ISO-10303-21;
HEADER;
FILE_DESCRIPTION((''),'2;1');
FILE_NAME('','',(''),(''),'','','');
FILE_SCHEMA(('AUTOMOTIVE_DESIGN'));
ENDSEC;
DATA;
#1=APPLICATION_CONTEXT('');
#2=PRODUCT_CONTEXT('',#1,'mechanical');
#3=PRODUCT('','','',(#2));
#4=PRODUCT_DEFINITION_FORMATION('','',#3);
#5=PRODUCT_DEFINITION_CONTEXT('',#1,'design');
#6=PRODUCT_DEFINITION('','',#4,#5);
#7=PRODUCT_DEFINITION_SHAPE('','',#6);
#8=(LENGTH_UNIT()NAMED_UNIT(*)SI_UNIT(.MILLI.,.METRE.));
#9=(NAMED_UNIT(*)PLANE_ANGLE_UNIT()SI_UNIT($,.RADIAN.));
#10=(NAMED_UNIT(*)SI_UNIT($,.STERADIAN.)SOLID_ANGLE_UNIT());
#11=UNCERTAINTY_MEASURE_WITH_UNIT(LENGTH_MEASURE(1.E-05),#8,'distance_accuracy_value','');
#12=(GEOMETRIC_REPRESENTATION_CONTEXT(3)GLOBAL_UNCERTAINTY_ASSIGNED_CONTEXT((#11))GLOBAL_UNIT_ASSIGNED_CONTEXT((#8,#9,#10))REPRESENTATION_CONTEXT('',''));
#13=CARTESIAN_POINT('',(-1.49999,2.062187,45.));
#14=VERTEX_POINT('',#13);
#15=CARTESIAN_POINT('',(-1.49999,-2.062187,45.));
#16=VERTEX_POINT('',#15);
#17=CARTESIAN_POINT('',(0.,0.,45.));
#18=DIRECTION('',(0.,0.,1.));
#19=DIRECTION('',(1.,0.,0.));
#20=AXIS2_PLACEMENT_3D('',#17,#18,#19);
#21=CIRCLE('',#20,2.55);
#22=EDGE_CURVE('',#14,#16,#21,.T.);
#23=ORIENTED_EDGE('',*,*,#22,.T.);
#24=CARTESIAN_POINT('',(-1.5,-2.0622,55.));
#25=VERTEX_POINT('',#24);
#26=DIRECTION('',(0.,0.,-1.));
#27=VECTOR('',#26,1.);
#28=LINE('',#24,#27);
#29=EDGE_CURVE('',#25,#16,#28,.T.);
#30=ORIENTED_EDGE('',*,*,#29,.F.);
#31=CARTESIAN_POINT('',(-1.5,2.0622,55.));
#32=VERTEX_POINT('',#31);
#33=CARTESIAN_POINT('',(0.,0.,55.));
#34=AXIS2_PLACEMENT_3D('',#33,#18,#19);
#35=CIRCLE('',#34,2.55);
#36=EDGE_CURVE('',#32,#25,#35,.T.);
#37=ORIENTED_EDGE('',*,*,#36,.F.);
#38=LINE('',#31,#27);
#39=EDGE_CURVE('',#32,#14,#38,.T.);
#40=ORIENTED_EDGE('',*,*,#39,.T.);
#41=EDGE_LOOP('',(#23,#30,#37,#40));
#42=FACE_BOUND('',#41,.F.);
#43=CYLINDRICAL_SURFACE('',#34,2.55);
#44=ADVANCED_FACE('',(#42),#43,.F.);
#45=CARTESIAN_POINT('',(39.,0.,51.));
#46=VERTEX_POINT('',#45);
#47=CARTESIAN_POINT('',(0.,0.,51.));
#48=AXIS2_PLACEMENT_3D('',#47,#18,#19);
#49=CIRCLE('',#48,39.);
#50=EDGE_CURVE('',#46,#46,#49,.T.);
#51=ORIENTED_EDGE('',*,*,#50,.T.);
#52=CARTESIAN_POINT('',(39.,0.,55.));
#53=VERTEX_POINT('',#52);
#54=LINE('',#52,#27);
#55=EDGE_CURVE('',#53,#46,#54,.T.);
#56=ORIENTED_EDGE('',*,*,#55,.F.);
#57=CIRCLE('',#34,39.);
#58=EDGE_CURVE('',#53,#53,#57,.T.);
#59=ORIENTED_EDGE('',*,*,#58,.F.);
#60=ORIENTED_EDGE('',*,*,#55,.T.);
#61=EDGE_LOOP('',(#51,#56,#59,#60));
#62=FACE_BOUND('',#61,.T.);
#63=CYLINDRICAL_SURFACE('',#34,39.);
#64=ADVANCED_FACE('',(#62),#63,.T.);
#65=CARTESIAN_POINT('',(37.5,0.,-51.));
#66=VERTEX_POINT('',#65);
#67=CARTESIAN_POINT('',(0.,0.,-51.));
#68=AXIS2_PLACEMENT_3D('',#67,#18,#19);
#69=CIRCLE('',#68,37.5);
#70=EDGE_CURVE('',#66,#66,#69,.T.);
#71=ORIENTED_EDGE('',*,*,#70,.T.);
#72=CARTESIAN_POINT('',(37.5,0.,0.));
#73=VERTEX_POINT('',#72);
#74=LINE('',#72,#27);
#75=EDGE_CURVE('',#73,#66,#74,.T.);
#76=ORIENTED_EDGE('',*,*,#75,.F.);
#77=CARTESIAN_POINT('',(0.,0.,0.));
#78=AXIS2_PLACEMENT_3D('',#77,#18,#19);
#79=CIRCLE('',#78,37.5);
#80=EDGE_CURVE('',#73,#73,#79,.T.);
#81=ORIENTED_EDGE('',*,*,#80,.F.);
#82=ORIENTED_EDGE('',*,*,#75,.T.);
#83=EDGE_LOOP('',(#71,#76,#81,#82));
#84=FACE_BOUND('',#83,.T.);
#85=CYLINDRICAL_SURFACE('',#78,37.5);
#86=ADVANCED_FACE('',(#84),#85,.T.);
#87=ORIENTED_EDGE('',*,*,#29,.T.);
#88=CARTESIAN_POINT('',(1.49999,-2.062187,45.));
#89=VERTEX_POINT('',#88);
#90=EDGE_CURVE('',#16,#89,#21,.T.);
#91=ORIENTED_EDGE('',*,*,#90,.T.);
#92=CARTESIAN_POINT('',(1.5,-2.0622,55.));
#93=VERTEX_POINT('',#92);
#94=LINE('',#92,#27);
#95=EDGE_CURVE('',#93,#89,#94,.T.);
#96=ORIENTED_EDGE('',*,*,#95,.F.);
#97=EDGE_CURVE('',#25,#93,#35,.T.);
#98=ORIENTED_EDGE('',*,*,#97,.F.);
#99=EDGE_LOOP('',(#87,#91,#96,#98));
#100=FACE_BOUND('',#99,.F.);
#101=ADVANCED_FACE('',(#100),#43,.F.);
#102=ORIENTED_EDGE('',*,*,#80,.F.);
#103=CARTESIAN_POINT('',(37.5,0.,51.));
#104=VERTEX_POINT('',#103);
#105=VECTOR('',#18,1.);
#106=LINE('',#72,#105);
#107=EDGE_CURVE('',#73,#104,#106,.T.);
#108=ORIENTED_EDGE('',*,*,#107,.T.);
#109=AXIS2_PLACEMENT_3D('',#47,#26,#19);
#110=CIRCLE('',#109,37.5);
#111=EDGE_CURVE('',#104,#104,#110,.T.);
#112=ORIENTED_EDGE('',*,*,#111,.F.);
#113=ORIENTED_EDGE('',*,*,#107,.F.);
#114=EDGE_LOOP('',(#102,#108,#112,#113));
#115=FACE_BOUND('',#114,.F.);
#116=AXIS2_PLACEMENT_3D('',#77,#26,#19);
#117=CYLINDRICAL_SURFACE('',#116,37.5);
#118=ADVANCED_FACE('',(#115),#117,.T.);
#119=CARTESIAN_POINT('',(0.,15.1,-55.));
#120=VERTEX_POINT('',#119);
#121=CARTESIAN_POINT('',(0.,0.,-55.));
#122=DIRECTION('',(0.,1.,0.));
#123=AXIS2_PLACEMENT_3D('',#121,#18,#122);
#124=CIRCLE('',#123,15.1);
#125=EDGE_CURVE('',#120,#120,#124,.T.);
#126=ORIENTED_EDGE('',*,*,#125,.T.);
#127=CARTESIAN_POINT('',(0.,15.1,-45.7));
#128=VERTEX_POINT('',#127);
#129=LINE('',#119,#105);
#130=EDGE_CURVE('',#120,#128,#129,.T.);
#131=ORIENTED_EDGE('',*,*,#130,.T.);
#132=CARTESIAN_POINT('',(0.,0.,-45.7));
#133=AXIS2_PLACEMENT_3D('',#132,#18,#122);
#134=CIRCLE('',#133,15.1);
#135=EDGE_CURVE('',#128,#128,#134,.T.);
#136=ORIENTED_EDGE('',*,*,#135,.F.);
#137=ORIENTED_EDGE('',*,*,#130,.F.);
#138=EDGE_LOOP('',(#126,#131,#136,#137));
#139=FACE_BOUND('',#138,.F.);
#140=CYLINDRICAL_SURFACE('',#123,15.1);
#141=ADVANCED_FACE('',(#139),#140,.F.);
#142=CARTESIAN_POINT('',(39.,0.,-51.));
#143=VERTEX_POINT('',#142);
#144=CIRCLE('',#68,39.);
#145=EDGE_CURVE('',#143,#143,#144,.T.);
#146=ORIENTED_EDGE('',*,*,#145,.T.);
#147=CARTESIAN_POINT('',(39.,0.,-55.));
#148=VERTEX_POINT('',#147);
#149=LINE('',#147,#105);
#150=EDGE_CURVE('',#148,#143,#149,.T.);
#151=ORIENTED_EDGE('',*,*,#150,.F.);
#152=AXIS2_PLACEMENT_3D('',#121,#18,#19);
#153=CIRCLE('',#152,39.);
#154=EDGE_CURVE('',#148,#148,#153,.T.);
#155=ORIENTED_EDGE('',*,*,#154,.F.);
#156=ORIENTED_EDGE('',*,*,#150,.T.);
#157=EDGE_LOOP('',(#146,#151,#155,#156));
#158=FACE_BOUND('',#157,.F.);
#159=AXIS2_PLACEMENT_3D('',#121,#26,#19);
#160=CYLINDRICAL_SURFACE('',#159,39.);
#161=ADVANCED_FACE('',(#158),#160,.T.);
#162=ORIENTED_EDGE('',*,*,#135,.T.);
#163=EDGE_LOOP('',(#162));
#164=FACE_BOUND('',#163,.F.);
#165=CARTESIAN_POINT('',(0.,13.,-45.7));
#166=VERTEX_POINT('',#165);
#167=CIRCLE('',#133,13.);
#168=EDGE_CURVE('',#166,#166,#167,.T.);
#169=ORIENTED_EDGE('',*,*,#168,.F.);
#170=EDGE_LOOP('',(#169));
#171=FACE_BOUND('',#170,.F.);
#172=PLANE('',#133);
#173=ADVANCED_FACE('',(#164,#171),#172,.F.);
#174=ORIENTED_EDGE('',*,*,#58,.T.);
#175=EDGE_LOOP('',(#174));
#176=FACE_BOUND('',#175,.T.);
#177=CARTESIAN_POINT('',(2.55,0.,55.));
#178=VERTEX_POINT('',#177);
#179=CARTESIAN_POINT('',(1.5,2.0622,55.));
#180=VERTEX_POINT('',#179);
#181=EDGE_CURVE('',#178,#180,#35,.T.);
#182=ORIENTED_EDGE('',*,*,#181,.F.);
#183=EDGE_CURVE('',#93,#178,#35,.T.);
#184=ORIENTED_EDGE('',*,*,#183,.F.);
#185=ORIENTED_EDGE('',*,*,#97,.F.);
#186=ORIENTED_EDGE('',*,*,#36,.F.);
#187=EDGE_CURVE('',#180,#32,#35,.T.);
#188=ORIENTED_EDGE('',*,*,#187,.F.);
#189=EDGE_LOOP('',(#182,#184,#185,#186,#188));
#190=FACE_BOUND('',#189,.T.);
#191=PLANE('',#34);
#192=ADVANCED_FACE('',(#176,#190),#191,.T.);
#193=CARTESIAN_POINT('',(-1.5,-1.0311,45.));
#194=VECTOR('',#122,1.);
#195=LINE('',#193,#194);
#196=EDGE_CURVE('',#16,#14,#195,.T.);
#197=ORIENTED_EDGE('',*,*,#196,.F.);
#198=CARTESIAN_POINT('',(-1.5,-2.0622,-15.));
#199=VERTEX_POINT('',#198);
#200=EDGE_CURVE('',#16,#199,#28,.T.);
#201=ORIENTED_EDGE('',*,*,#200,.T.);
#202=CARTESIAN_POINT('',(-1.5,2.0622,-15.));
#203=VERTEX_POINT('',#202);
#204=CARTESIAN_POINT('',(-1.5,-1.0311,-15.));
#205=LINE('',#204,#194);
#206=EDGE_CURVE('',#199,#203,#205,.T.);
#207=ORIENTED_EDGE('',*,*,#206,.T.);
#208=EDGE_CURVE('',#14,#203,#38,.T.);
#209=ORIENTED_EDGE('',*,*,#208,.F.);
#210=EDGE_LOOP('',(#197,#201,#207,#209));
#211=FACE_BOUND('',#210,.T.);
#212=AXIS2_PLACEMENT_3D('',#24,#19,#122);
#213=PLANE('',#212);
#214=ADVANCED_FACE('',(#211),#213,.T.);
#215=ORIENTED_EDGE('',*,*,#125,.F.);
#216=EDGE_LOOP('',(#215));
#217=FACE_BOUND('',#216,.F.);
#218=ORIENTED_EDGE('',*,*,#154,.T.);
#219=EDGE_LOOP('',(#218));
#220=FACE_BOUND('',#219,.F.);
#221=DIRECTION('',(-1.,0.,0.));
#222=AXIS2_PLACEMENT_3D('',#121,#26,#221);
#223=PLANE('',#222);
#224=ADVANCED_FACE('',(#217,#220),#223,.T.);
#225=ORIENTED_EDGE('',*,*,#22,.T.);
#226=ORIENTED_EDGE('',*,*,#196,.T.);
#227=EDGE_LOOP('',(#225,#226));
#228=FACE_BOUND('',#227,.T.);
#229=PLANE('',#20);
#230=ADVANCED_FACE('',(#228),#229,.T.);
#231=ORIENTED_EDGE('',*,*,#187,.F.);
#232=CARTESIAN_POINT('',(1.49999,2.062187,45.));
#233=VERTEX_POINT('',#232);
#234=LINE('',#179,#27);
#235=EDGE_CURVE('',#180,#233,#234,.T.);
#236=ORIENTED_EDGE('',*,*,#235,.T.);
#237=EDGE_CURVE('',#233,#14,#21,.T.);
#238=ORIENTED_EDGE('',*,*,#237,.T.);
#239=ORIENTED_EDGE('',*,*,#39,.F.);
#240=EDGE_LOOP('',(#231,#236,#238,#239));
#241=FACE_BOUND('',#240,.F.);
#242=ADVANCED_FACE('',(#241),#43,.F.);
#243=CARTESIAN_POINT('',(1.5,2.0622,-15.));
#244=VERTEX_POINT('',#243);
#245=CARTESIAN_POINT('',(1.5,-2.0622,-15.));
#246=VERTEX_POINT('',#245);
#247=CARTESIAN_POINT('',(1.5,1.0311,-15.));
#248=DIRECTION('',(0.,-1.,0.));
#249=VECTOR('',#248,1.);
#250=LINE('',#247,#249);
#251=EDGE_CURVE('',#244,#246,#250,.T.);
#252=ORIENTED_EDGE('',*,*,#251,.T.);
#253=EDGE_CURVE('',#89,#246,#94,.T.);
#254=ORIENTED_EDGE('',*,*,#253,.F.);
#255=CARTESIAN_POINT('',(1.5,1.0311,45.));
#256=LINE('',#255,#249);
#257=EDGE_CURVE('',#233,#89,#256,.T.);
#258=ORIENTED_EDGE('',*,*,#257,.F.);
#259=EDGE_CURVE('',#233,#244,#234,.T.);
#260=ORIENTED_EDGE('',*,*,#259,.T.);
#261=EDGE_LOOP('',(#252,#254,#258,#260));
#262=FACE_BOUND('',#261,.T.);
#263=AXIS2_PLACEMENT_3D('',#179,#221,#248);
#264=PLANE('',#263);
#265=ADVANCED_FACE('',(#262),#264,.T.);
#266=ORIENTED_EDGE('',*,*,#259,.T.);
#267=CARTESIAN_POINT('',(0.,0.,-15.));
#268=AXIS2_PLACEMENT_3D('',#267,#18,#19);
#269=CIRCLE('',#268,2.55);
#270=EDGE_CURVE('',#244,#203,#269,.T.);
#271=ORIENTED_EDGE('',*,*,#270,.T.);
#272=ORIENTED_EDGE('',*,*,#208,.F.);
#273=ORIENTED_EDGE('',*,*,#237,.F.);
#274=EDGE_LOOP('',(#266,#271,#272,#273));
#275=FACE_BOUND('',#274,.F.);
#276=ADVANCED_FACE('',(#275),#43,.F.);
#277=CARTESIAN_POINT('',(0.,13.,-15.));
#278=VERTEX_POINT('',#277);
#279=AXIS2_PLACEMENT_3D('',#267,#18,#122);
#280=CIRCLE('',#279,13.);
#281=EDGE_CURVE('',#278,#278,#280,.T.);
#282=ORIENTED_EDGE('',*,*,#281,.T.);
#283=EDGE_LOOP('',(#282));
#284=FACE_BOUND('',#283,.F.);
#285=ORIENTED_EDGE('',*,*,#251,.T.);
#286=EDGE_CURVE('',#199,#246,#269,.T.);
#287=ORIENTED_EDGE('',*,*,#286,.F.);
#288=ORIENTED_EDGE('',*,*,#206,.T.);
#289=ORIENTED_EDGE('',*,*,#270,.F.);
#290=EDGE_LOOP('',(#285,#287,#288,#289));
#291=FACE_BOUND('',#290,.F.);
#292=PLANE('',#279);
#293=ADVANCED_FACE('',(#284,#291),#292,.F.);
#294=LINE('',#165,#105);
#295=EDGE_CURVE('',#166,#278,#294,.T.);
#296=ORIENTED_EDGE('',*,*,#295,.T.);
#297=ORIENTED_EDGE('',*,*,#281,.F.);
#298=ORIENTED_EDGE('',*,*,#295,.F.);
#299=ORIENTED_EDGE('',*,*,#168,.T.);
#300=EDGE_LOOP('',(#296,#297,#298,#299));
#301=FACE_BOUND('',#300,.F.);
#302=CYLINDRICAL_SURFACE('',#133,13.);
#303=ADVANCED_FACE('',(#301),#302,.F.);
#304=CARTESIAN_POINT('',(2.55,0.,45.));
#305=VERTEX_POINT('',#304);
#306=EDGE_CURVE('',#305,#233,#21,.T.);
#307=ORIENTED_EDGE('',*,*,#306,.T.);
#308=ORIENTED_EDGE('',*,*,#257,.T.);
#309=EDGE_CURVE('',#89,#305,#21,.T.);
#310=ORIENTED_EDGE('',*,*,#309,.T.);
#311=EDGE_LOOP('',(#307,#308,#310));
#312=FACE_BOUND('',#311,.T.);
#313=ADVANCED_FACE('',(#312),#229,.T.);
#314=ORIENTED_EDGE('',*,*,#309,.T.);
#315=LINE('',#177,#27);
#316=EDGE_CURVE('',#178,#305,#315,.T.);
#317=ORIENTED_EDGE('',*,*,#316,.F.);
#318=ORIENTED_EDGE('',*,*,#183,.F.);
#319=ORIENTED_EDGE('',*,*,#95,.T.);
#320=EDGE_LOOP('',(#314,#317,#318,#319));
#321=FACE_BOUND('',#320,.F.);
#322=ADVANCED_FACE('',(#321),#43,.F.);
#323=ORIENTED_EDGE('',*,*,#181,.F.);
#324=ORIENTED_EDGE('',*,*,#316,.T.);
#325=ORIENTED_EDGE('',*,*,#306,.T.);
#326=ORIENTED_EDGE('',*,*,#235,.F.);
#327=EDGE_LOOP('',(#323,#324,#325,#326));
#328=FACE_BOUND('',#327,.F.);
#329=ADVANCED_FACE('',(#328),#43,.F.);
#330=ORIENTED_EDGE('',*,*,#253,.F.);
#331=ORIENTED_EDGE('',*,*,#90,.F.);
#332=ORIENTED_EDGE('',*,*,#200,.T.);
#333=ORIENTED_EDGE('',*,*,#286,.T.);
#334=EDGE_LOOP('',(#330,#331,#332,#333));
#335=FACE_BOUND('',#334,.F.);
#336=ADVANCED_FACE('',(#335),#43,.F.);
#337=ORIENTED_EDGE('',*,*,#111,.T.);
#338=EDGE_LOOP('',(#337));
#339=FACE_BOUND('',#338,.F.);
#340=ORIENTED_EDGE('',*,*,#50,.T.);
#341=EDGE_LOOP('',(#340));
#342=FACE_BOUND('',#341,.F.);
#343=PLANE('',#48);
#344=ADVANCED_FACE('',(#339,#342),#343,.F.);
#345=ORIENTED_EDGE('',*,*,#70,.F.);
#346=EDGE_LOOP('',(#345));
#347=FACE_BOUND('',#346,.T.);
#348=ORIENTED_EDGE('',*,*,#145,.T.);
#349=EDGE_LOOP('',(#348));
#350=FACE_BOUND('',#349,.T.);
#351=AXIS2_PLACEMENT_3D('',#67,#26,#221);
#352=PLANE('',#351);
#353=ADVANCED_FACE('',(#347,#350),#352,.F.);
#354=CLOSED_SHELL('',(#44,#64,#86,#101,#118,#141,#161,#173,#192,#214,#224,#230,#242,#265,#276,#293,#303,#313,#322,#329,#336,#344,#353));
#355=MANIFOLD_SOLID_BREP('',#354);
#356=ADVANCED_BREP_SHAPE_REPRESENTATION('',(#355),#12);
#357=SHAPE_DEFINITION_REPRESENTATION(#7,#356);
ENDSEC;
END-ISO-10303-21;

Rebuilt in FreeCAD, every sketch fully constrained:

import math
import FreeCAD as App
import Part
import Sketcher

V = App.Vector
Q = App.Units.Quantity

doc = App.newDocument("Part")
body = doc.addObject("PartDesign::Body", "Body")

# Sketch on XY plane
sketch1 = body.newObject("Sketcher::SketchObject", "Sketch")
sketch1.AttachmentSupport = (doc.getObject("XY_Plane"), [""])
sketch1.MapMode = "FlatFace"
sketch1.addGeometry(Part.Circle(V(0, 0, 0), V(0, 0, 1), 37.5), False)
sketch1.addConstraint([
    Sketcher.Constraint("Coincident", 0, 3, -1, 1),
    Sketcher.Constraint("Diameter", 0, Q("75 mm")),
])
pad1 = body.newObject("PartDesign::Pad", "Pad")
pad1.Profile = sketch1
pad1.Length = 110
pad1.Midplane = True

# Sketch on XY plane
sketch2 = body.newObject("Sketcher::SketchObject", "Sketch001")
sketch2.AttachmentSupport = (doc.getObject("XY_Plane"), [""])
sketch2.MapMode = "FlatFace"
sketch2.AttachmentOffset = App.Placement(V(0, 0, 55), App.Rotation())
sketch2.addGeometry(Part.Circle(V(0, 0, 0), V(0, 0, 1), 39), False)
sketch2.addConstraint([
    Sketcher.Constraint("Coincident", 0, 3, -1, 1),
    Sketcher.Constraint("Diameter", 0, Q("78 mm")),
])
pad2 = body.newObject("PartDesign::Pad", "Pad001")
pad2.Profile = sketch2
pad2.Length = 4
pad2.Reversed = True
doc.recompute()

mirrored = body.newObject("PartDesign::Mirrored", "Mirrored")
mirrored.Originals = [pad2]
mirrored.MirrorPlane = (doc.getObject("XY_Plane"), [""])
body.Tip = mirrored

# Sketch on XY plane
sketch3 = body.newObject("Sketcher::SketchObject", "Sketch002")
sketch3.AttachmentSupport = (doc.getObject("XY_Plane"), [""])
sketch3.MapMode = "FlatFace"
sketch3.AttachmentOffset = App.Placement(V(0, 0, -55), App.Rotation())
sketch3.addGeometry(Part.Circle(V(0, 0, 0), V(0, 0, 1), 13), False)
sketch3.addConstraint([
    Sketcher.Constraint("Coincident", 0, 3, -1, 1),
    Sketcher.Constraint("Diameter", 0, Q("26 mm")),
])
doc.recompute()
hole = body.newObject("PartDesign::Hole", "Hole")
hole.Profile = sketch3
hole.ThreadType = "None"
hole.Diameter = 26
hole.DepthType = "Dimension"
hole.Depth = 40
hole.DrillPoint = "Flat"
hole.HoleCutType = "Counterbore"
hole.HoleCutDiameter = 30.2
hole.HoleCutDepth = 9.3
hole.Reversed = True

# Sketch on XY plane
sketch4 = body.newObject("Sketcher::SketchObject", "Sketch003")
sketch4.AttachmentSupport = (doc.getObject("XY_Plane"), [""])
sketch4.MapMode = "FlatFace"
sketch4.AttachmentOffset = App.Placement(V(0, 0, 55), App.Rotation())
sketch4.addGeometry(Part.Circle(V(0, 0, 0), V(0, 0, 1), 2.55), False)
sketch4.addConstraint([
    Sketcher.Constraint("Coincident", 0, 3, -1, 1),
    Sketcher.Constraint("Diameter", 0, Q("5.1 mm")),
])
pocket1 = body.newObject("PartDesign::Pocket", "Pocket")
pocket1.Profile = sketch4
pocket1.Length = 10

# Sketch on XY plane
sketch5 = body.newObject("Sketcher::SketchObject", "Sketch004")
sketch5.AttachmentSupport = (doc.getObject("XY_Plane"), [""])
sketch5.MapMode = "FlatFace"
sketch5.AttachmentOffset = App.Placement(V(0, 0, 55), App.Rotation())
sketch5.addGeometry([
    Part.LineSegment(V(1.5, -2.0622, 0), V(1.5, 2.0622, 0)),
    Part.ArcOfCircle(Part.Circle(V(0, 0, 0), V(0, 0, 1), 2.55), math.radians(53.968662), math.radians(126.031338)),
    Part.LineSegment(V(-1.5, 2.0622, 0), V(-1.5, -2.0622, 0)),
    Part.ArcOfCircle(Part.Circle(V(0, 0, 0), V(0, 0, 1), 2.55), math.radians(-126.031338), math.radians(-53.968662)),
], False)
sketch5.addConstraint([
    Sketcher.Constraint("Coincident", 0, 2, 1, 1),
    Sketcher.Constraint("Coincident", 1, 2, 2, 1),
    Sketcher.Constraint("Coincident", 2, 2, 3, 1),
    Sketcher.Constraint("Coincident", 3, 2, 0, 1),
    Sketcher.Constraint("Vertical", 0),
    Sketcher.Constraint("Vertical", 2),
    Sketcher.Constraint("Coincident", 1, 3, -1, 1),
    Sketcher.Constraint("Coincident", 3, 3, -1, 1),
    Sketcher.Constraint("Equal", 1, 3),
    Sketcher.Constraint("Horizontal", 0, 2, 1, 2),
    Sketcher.Constraint("DistanceX", -1, 1, 0, 2, Q("1.5 mm")),
    Sketcher.Constraint("Radius", 1, Q("2.55 mm")),
])
pocket2 = body.newObject("PartDesign::Pocket", "Pocket001")
pocket2.Profile = sketch5
pocket2.Type = "ThroughAll"

doc.recompute()
